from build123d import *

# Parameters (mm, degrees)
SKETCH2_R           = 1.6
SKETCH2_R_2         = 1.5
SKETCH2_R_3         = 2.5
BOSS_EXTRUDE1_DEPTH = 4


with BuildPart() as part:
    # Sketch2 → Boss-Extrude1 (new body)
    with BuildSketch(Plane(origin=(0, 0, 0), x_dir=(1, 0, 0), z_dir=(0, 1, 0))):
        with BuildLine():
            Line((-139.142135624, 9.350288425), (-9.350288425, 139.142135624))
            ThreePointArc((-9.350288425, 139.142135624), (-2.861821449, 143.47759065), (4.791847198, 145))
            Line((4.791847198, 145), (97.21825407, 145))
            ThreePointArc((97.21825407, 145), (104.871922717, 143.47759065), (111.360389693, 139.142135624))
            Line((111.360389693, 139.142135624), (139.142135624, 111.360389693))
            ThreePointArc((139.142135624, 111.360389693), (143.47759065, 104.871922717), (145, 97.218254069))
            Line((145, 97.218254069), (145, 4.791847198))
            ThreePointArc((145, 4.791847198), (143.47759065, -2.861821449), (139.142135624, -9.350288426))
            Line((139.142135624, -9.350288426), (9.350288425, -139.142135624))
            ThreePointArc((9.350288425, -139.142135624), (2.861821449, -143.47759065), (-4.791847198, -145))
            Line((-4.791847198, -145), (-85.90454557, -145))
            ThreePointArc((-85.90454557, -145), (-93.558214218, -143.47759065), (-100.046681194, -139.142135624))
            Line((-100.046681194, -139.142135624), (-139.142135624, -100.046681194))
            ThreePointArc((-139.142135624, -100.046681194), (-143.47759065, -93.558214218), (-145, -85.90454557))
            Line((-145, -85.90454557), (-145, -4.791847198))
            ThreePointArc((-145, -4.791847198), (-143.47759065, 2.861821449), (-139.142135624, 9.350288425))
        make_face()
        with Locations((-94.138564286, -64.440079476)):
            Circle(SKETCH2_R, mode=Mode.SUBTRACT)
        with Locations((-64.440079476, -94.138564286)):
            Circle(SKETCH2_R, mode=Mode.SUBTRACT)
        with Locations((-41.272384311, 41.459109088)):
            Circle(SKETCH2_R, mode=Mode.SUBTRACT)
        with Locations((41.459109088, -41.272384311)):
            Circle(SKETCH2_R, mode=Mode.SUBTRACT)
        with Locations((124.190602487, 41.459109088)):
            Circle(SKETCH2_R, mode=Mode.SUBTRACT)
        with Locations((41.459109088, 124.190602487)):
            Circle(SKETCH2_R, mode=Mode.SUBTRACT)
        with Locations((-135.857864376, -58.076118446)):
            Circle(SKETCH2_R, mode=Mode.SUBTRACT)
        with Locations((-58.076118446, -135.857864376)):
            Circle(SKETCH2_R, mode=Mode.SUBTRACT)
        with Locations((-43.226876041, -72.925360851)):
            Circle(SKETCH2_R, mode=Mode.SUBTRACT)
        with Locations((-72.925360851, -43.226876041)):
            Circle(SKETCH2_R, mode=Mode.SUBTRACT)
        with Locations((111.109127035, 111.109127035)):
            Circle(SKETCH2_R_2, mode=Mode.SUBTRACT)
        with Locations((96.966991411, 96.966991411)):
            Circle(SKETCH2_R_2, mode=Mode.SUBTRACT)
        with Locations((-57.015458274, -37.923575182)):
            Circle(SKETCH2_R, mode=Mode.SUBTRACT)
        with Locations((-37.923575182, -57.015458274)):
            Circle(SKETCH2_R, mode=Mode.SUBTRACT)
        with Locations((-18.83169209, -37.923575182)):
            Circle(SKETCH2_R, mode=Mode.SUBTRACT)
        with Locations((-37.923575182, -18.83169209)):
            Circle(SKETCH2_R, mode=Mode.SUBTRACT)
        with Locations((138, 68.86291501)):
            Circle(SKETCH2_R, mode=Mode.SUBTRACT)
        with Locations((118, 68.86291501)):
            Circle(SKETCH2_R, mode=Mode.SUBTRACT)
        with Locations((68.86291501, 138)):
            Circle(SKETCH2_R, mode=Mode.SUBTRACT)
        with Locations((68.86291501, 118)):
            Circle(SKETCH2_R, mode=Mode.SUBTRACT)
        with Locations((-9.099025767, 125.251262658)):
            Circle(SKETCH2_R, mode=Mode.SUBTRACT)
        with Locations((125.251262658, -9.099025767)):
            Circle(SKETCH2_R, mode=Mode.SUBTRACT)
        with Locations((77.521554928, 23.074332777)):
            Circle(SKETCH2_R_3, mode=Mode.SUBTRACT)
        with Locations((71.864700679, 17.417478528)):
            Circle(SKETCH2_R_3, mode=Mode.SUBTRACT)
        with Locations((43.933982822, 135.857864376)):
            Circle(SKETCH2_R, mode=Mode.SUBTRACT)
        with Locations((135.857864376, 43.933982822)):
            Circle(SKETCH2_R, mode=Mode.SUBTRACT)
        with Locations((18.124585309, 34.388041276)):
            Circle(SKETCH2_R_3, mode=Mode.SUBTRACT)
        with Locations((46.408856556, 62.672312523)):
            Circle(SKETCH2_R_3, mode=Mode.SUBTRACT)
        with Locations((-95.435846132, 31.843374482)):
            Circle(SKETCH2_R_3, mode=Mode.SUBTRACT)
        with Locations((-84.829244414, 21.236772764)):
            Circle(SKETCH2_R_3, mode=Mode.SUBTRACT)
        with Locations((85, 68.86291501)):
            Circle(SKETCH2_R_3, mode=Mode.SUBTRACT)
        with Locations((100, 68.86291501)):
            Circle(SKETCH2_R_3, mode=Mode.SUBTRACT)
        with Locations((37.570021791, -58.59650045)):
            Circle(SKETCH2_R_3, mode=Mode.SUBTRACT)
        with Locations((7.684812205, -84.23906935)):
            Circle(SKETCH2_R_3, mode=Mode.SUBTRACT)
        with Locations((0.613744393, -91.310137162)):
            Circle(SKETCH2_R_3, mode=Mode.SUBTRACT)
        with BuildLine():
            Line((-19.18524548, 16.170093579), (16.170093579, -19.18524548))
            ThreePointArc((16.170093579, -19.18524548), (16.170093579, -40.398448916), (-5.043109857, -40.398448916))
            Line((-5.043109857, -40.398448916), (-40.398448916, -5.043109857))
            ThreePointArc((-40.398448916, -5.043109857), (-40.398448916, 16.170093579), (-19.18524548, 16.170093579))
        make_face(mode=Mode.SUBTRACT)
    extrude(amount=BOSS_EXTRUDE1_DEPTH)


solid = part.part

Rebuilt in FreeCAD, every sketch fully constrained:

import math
import FreeCAD as App
import Part
import Sketcher
Q = App.Units.Quantity

doc = App.newDocument("Part")
body = doc.addObject("PartDesign::Body", "Body")

# Sketch on XZ plane
sketch1 = body.newObject("Sketcher::SketchObject", "Sketch")
sketch1.AttachmentSupport = (doc.getObject("XZ_Plane"), [""])
sketch1.MapMode = "FlatFace"
sketch1.addGeometry(Part.LineSegment(App.Vector(-9.4, -139.1, 0), App.Vector(-139.1, -9.4, 0)), False)
sketch1.addGeometry(Part.ArcOfCircle(Part.Circle(App.Vector(-125, 4.8, 0), App.Vector(0, 0, 1), 20), math.radians(-180), math.radians(-135)), False)
sketch1.addGeometry(Part.LineSegment(App.Vector(-145, 4.8, 0), App.Vector(-145, 85.9, 0)), False)
sketch1.addGeometry(Part.ArcOfCircle(Part.Circle(App.Vector(-125, 85.9, 0), App.Vector(0, 0, 1), 20), math.radians(135), math.radians(180)), False)
sketch1.addGeometry(Part.LineSegment(App.Vector(-139.1, 100, 0), App.Vector(-100, 139.1, 0)), False)
sketch1.addGeometry(Part.ArcOfCircle(Part.Circle(App.Vector(-85.9, 125, 0), App.Vector(0, 0, 1), 20), math.radians(90), math.radians(135)), False)
sketch1.addGeometry(Part.LineSegment(App.Vector(-85.9, 145, 0), App.Vector(-4.8, 145, 0)), False)
sketch1.addGeometry(Part.ArcOfCircle(Part.Circle(App.Vector(-4.8, 125, 0), App.Vector(0, 0, 1), 20), math.radians(45), math.radians(90)), False)
sketch1.addGeometry(Part.LineSegment(App.Vector(9.4, 139.1, 0), App.Vector(139.1, 9.4, 0)), False)
sketch1.addGeometry(Part.ArcOfCircle(Part.Circle(App.Vector(125, -4.8, 0), App.Vector(0, 0, 1), 20), math.radians(0), math.radians(45)), False)
sketch1.addGeometry(Part.LineSegment(App.Vector(145, -4.8, 0), App.Vector(145, -97.2, 0)), False)
sketch1.addGeometry(Part.ArcOfCircle(Part.Circle(App.Vector(125, -97.2, 0), App.Vector(0, 0, 1), 20), math.radians(-45), math.radians(0)), False)
sketch1.addGeometry(Part.LineSegment(App.Vector(139.1, -111.4, 0), App.Vector(111.4, -139.1, 0)), False)
sketch1.addGeometry(Part.ArcOfCircle(Part.Circle(App.Vector(97.2, -125, 0), App.Vector(0, 0, 1), 20), math.radians(-90), math.radians(-45)), False)
sketch1.addGeometry(Part.LineSegment(App.Vector(97.2, -145, 0), App.Vector(4.8, -145, 0)), False)
sketch1.addGeometry(Part.ArcOfCircle(Part.Circle(App.Vector(4.8, -125, 0), App.Vector(0, 0, 1), 20), math.radians(-135), math.radians(-90)), False)
sketch1.addGeometry(Part.Circle(App.Vector(7.7, 84.2, 0), App.Vector(0, 0, 1), 2.5), False)
sketch1.addGeometry(Part.Circle(App.Vector(125.3, 9.1, 0), App.Vector(0, 0, 1), 1.6), False)
sketch1.addGeometry(Part.Circle(App.Vector(37.6, 58.6, 0), App.Vector(0, 0, 1), 2.5), False)
sketch1.addGeometry(Part.Circle(App.Vector(41.5, 41.3, 0), App.Vector(0, 0, 1), 1.6), False)
sketch1.addGeometry(Part.Circle(App.Vector(-58.1, 135.9, 0), App.Vector(0, 0, 1), 1.6), False)
sketch1.addGeometry(Part.Circle(App.Vector(0.6, 91.3, 0), App.Vector(0, 0, 1), 2.5), False)
sketch1.addGeometry(Part.Circle(App.Vector(-64.4, 94.1, 0), App.Vector(0, 0, 1), 1.6), False)
sketch1.addGeometry(Part.Circle(App.Vector(-43.2, 72.9, 0), App.Vector(0, 0, 1), 1.6), False)
sketch1.addGeometry(Part.Circle(App.Vector(-18.8, 37.9, 0), App.Vector(0, 0, 1), 1.6), False)
sketch1.addGeometry(Part.Circle(App.Vector(-37.9, 57, 0), App.Vector(0, 0, 1), 1.6), False)
sketch1.addGeometry(Part.Circle(App.Vector(-57, 37.9, 0), App.Vector(0, 0, 1), 1.6), False)
sketch1.addGeometry(Part.LineSegment(App.Vector(-19.2, -16.2, 0), App.Vector(16.2, 19.2, 0)), False)
sketch1.addGeometry(Part.ArcOfCircle(Part.Circle(App.Vector(5.6, 29.8, 0), App.Vector(0, 0, 1), 15), math.radians(-45), math.radians(135)), False)
sketch1.addGeometry(Part.LineSegment(App.Vector(-5, 40.4, 0), App.Vector(-40.4, 5, 0)), False)
sketch1.addGeometry(Part.ArcOfCircle(Part.Circle(App.Vector(-29.8, -5.6, 0), App.Vector(0, 0, 1), 15), math.radians(135), math.radians(315)), False)
sketch1.addGeometry(Part.Circle(App.Vector(-37.9, 18.8, 0), App.Vector(0, 0, 1), 1.6), False)
sketch1.addGeometry(Part.Circle(App.Vector(-94.1, 64.4, 0), App.Vector(0, 0, 1), 1.6), False)
sketch1.addGeometry(Part.Circle(App.Vector(-72.9, 43.2, 0), App.Vector(0, 0, 1), 1.6), False)
sketch1.addGeometry(Part.Circle(App.Vector(-135.9, 58.1, 0), App.Vector(0, 0, 1), 1.6), False)
sketch1.addGeometry(Part.Circle(App.Vector(71.9, -17.4, 0), App.Vector(0, 0, 1), 2.5), False)
sketch1.addGeometry(Part.Circle(App.Vector(77.5, -23.1, 0), App.Vector(0, 0, 1), 2.5), False)
sketch1.addGeometry(Part.Circle(App.Vector(135.9, -43.9, 0), App.Vector(0, 0, 1), 1.6), False)
sketch1.addGeometry(Part.Circle(App.Vector(124.2, -41.5, 0), App.Vector(0, 0, 1), 1.6), False)
sketch1.addGeometry(Part.Circle(App.Vector(138, -68.9, 0), App.Vector(0, 0, 1), 1.6), False)
sketch1.addGeometry(Part.Circle(App.Vector(118, -68.9, 0), App.Vector(0, 0, 1), 1.6), False)
sketch1.addGeometry(Part.Circle(App.Vector(100, -68.9, 0), App.Vector(0, 0, 1), 2.5), False)
sketch1.addGeometry(Part.Circle(App.Vector(85, -68.9, 0), App.Vector(0, 0, 1), 2.5), False)
sketch1.addGeometry(Part.Circle(App.Vector(18.1, -34.4, 0), App.Vector(0, 0, 1), 2.5), False)
sketch1.addGeometry(Part.Circle(App.Vector(46.4, -62.7, 0), App.Vector(0, 0, 1), 2.5), False)
sketch1.addGeometry(Part.Circle(App.Vector(97, -97, 0), App.Vector(0, 0, 1), 1.5), False)
sketch1.addGeometry(Part.Circle(App.Vector(111.1, -111.1, 0), App.Vector(0, 0, 1), 1.5), False)
sketch1.addGeometry(Part.Circle(App.Vector(68.9, -118, 0), App.Vector(0, 0, 1), 1.6), False)
sketch1.addGeometry(Part.Circle(App.Vector(68.9, -138, 0), App.Vector(0, 0, 1), 1.6), False)
sketch1.addGeometry(Part.Circle(App.Vector(41.5, -124.2, 0), App.Vector(0, 0, 1), 1.6), False)
sketch1.addGeometry(Part.Circle(App.Vector(43.9, -135.9, 0), App.Vector(0, 0, 1), 1.6), False)
sketch1.addGeometry(Part.Circle(App.Vector(-41.3, -41.5, 0), App.Vector(0, 0, 1), 1.6), False)
sketch1.addGeometry(Part.Circle(App.Vector(-84.8, -21.2, 0), App.Vector(0, 0, 1), 2.5), False)
sketch1.addGeometry(Part.Circle(App.Vector(-95.4, -31.8, 0), App.Vector(0, 0, 1), 2.5), False)
sketch1.addGeometry(Part.Circle(App.Vector(-9.1, -125.3, 0), App.Vector(0, 0, 1), 1.6), False)
sketch1.addConstraint(Sketcher.Constraint("Tangent", 0, 2, 1, 2))
sketch1.addConstraint(Sketcher.Constraint("Tangent", 1, 1, 2, 1))
sketch1.addConstraint(Sketcher.Constraint("Tangent", 2, 2, 3, 2))
sketch1.addConstraint(Sketcher.Constraint("Tangent", 3, 1, 4, 1))
sketch1.addConstraint(Sketcher.Constraint("Tangent", 4, 2, 5, 2))
sketch1.addConstraint(Sketcher.Constraint("Tangent", 5, 1, 6, 1))
sketch1.addConstraint(Sketcher.Constraint("Tangent", 6, 2, 7, 2))
sketch1.addConstraint(Sketcher.Constraint("Tangent", 7, 1, 8, 1))
sketch1.addConstraint(Sketcher.Constraint("Tangent", 8, 2, 9, 2))
sketch1.addConstraint(Sketcher.Constraint("Tangent", 9, 1, 10, 1))
sketch1.addConstraint(Sketcher.Constraint("Tangent", 10, 2, 11, 2))
sketch1.addConstraint(Sketcher.Constraint("Tangent", 11, 1, 12, 1))
sketch1.addConstraint(Sketcher.Constraint("Tangent", 12, 2, 13, 2))
sketch1.addConstraint(Sketcher.Constraint("Tangent", 13, 1, 14, 1))
sketch1.addConstraint(Sketcher.Constraint("Tangent", 14, 2, 15, 2))
sketch1.addConstraint(Sketcher.Constraint("Tangent", 15, 1, 0, 1))
sketch1.addConstraint(Sketcher.Constraint("Tangent", 27, 2, 28, 1))
sketch1.addConstraint(Sketcher.Constraint("Tangent", 28, 2, 29, 1))
sketch1.addConstraint(Sketcher.Constraint("Tangent", 29, 2, 30, 1))
sketch1.addConstraint(Sketcher.Constraint("Tangent", 30, 2, 27, 1))
sketch1.addConstraint(Sketcher.Constraint("Vertical", 2))
sketch1.addConstraint(Sketcher.Constraint("Horizontal", 6))
sketch1.addConstraint(Sketcher.Constraint("Vertical", 10))
sketch1.addConstraint(Sketcher.Constraint("Horizontal", 14))
sketch1.addConstraint(Sketcher.Constraint("Equal", 1, 3))
sketch1.addConstraint(Sketcher.Constraint("Equal", 3, 5))
sketch1.addConstraint(Sketcher.Constraint("Equal", 5, 7))
sketch1.addConstraint(Sketcher.Constraint("Equal", 7, 9))
sketch1.addConstraint(Sketcher.Constraint("Equal", 9, 11))
sketch1.addConstraint(Sketcher.Constraint("Equal", 11, 13))
sketch1.addConstraint(Sketcher.Constraint("Equal", 13, 15))
sketch1.addConstraint(Sketcher.Constraint("Equal", 16, 18))
sketch1.addConstraint(Sketcher.Constraint("Equal", 17, 19))
sketch1.addConstraint(Sketcher.Constraint("Equal", 19, 20))
sketch1.addConstraint(Sketcher.Constraint("Equal", 18, 21))
sketch1.addConstraint(Sketcher.Constraint("Equal", 20, 22))
sketch1.addConstraint(Sketcher.Constraint("Equal", 22, 23))
sketch1.addConstraint(Sketcher.Constraint("Equal", 23, 24))
sketch1.addConstraint(Sketcher.Constraint("Equal", 24, 25))
sketch1.addConstraint(Sketcher.Constraint("Equal", 25, 26))
sketch1.addConstraint(Sketcher.Constraint("Equal", 28, 30))
sketch1.addConstraint(Sketcher.Constraint("Equal", 26, 31))
sketch1.addConstraint(Sketcher.Constraint("Equal", 31, 32))
sketch1.addConstraint(Sketcher.Constraint("Equal", 32, 33))
sketch1.addConstraint(Sketcher.Constraint("Equal", 33, 34))
sketch1.addConstraint(Sketcher.Constraint("Equal", 21, 35))
sketch1.addConstraint(Sketcher.Constraint("Equal", 35, 36))
sketch1.addConstraint(Sketcher.Constraint("Equal", 34, 37))
sketch1.addConstraint(Sketcher.Constraint("Equal", 37, 38))
sketch1.addConstraint(Sketcher.Constraint("Equal", 38, 39))
sketch1.addConstraint(Sketcher.Constraint("Equal", 39, 40))
sketch1.addConstraint(Sketcher.Constraint("Equal", 36, 41))
sketch1.addConstraint(Sketcher.Constraint("Equal", 41, 42))
sketch1.addConstraint(Sketcher.Constraint("Equal", 42, 43))
sketch1.addConstraint(Sketcher.Constraint("Equal", 43, 44))
sketch1.addConstraint(Sketcher.Constraint("Equal", 45, 46))
sketch1.addConstraint(Sketcher.Constraint("Equal", 40, 47))
sketch1.addConstraint(Sketcher.Constraint("Equal", 47, 48))
sketch1.addConstraint(Sketcher.Constraint("Equal", 48, 49))
sketch1.addConstraint(Sketcher.Constraint("Equal", 49, 50))
sketch1.addConstraint(Sketcher.Constraint("Equal", 50, 51))
sketch1.addConstraint(Sketcher.Constraint("Equal", 44, 52))
sketch1.addConstraint(Sketcher.Constraint("Equal", 52, 53))
sketch1.addConstraint(Sketcher.Constraint("Equal", 51, 54))
sketch1.addConstraint(Sketcher.Constraint("Symmetric", 1, 3, 9, 3, -1, 1))
sketch1.addConstraint(Sketcher.Constraint("Symmetric", 7, 3, 15, 3, -1, 1))
sketch1.addConstraint(Sketcher.Constraint("Perpendicular", 0, 4))
sketch1.addConstraint(Sketcher.Constraint("Perpendicular", 8, 12))
sketch1.addConstraint(Sketcher.Constraint("Parallel", 12, 27))
sketch1.addConstraint(Sketcher.Constraint("Horizontal", 24, 3, 26, 3))
sketch1.addConstraint(Sketcher.Constraint("Horizontal", 39, 3, 40, 3))
sketch1.addConstraint(Sketcher.Constraint("Horizontal", 40, 3, 41, 3))
sketch1.addConstraint(Sketcher.Constraint("Horizontal", 41, 3, 42, 3))
sketch1.addConstraint(Sketcher.Constraint("Horizontal", 38, 3, 51, 3))
sketch1.addConstraint(Sketcher.Constraint("Horizontal", 4, 2, 7, 1))
sketch1.addConstraint(Sketcher.Constraint("Vertical", 25, 3, 31, 3))
sketch1.addConstraint(Sketcher.Constraint("Vertical", 47, 3, 48, 3))
sketch1.addConstraint(Sketcher.Constraint("Vertical", 19, 3, 49, 3))
sketch1.addConstraint(Sketcher.Constraint("Equal", 6, 2))
sketch1.addConstraint(Sketcher.Constraint("Diameter", 16, Q("5 mm")))
sketch1.addConstraint(Sketcher.Constraint("Diameter", 45, Q("3 mm")))
sketch1.addConstraint(Sketcher.Constraint("Radius", 1, Q("20 mm")))
sketch1.addConstraint(Sketcher.Constraint("Radius", 28, Q("15 mm")))
sketch1.addConstraint(Sketcher.Constraint("Diameter", 17, Q("3.2 mm")))
sketch1.addConstraint(Sketcher.Constraint("Distance", 27, Q("50 mm")))
sketch1.addConstraint(Sketcher.Constraint("DistanceX", 1, 3, -1, 1, Q("125 mm")))
sketch1.addConstraint(Sketcher.Constraint("DistanceX", -1, 1, 39, 3, Q("138 mm")))
sketch1.addConstraint(Sketcher.Constraint("DistanceX", -1, 1, 40, 3, Q("118 mm")))
sketch1.addConstraint(Sketcher.Constraint("DistanceX", -1, 1, 41, 3, Q("100 mm")))
sketch1.addConstraint(Sketcher.Constraint("DistanceX", -1, 1, 42, 3, Q("85 mm")))
sketch1.addConstraint(Sketcher.Constraint("DistanceY", 47, 3, -1, 1, Q("118 mm")))
sketch1.addConstraint(Sketcher.Constraint("DistanceY", 48, 3, -1, 1, Q("138 mm")))
sketch1.addConstraint(Sketcher.Constraint("DistanceX", 6, 1, 6, 2, Q("81.112698 mm")))
sketch1.addConstraint(Sketcher.Constraint("DistanceY", -1, 1, 18, 3, Q("58.5965 mm")))
sketch1.addConstraint(Sketcher.Constraint("DistanceX", -1, 1, 35, 3, Q("71.864701 mm")))
sketch1.addConstraint(Sketcher.Constraint("Distance", 0, Q("183.553391 mm")))
sketch1.addConstraint(Sketcher.Constraint("Distance", 12, Q("39.289322 mm")))
sketch1.addConstraint(Sketcher.Constraint("DistanceY", -1, 1, 16, 3, Q("84.239069 mm")))
sketch1.addConstraint(Sketcher.Constraint("DistanceX", -1, 1, 18, 3, Q("37.570022 mm")))
sketch1.addConstraint(Sketcher.Constraint("DistanceX", -1, 1, 19, 3, Q("41.459109 mm")))
sketch1.addConstraint(Sketcher.Constraint("DistanceX", 20, 3, -1, 1, Q("58.076118 mm")))
sketch1.addConstraint(Sketcher.Constraint("DistanceX", 22, 3, -1, 1, Q("64.440079 mm")))
sketch1.addConstraint(Sketcher.Constraint("DistanceY", -1, 1, 23, 3, Q("72.925361 mm")))
sketch1.addConstraint(Sketcher.Constraint("DistanceY", -1, 1, 25, 3, Q("57.015458 mm")))
sketch1.addConstraint(Sketcher.Constraint("DistanceX", 26, 3, -1, 1, Q("57.015458 mm")))
sketch1.addConstraint(Sketcher.Constraint("DistanceX", -1, 1, 28, 3, Q("5.563492 mm")))
sketch1.addConstraint(Sketcher.Constraint("DistanceY", 30, 3, -1, 1, Q("5.563492 mm")))
sketch1.addConstraint(Sketcher.Constraint("DistanceY", -1, 1, 32, 3, Q("64.440079 mm")))
sketch1.addConstraint(Sketcher.Constraint("DistanceX", 33, 3, -1, 1, Q("72.925361 mm")))
sketch1.addConstraint(Sketcher.Constraint("DistanceY", -1, 1, 34, 3, Q("58.076118 mm")))
sketch1.addConstraint(Sketcher.Constraint("DistanceY", 35, 3, -1, 1, Q("17.417479 mm")))
sketch1.addConstraint(Sketcher.Constraint("DistanceY", 38, 3, -1, 1, Q("41.459109 mm")))
sketch1.addConstraint(Sketcher.Constraint("DistanceY", 43, 3, -1, 1, Q("34.388041 mm")))
sketch1.addConstraint(Sketcher.Constraint("DistanceX", -1, 1, 45, 3, Q("96.966991 mm")))
sketch1.addConstraint(Sketcher.Constraint("DistanceY", 45, 3, -1, 1, Q("96.966991 mm")))
sketch1.addConstraint(Sketcher.Constraint("DistanceX", -1, 1, 16, 3, Q("7.684812 mm")))
sketch1.addConstraint(Sketcher.Constraint("DistanceX", -1, 1, 17, 3, Q("125.251263 mm")))
sketch1.addConstraint(Sketcher.Constraint("DistanceY", -1, 1, 17, 3, Q("9.099026 mm")))
sketch1.addConstraint(Sketcher.Constraint("DistanceY", -1, 1, 19, 3, Q("41.272384 mm")))
sketch1.addConstraint(Sketcher.Constraint("DistanceY", -1, 1, 20, 3, Q("135.857864 mm")))
sketch1.addConstraint(Sketcher.Constraint("DistanceX", -1, 1, 21, 3, Q("0.613744 mm")))
sketch1.addConstraint(Sketcher.Constraint("DistanceY", -1, 1, 21, 3, Q("91.310137 mm")))
sketch1.addConstraint(Sketcher.Constraint("DistanceY", -1, 1, 22, 3, Q("94.138564 mm")))
sketch1.addConstraint(Sketcher.Constraint("DistanceX", 23, 3, -1, 1, Q("43.226876 mm")))
sketch1.addConstraint(Sketcher.Constraint("DistanceX", 24, 3, -1, 1, Q("18.831692 mm")))
sketch1.addConstraint(Sketcher.Constraint("DistanceY", -1, 1, 24, 3, Q("37.923575 mm")))
sketch1.addConstraint(Sketcher.Constraint("DistanceX", 25, 3, -1, 1, Q("37.923575 mm")))
sketch1.addConstraint(Sketcher.Constraint("DistanceY", -1, 1, 31, 3, Q("18.831692 mm")))
sketch1.addConstraint(Sketcher.Constraint("DistanceX", 32, 3, -1, 1, Q("94.138564 mm")))
sketch1.addConstraint(Sketcher.Constraint("DistanceY", -1, 1, 33, 3, Q("43.226876 mm")))
sketch1.addConstraint(Sketcher.Constraint("DistanceX", 34, 3, -1, 1, Q("135.857864 mm")))
sketch1.addConstraint(Sketcher.Constraint("DistanceX", -1, 1, 36, 3, Q("77.521555 mm")))
sketch1.addConstraint(Sketcher.Constraint("DistanceY", 36, 3, -1, 1, Q("23.074333 mm")))
sketch1.addConstraint(Sketcher.Constraint("DistanceX", -1, 1, 37, 3, Q("135.857864 mm")))
sketch1.addConstraint(Sketcher.Constraint("DistanceY", 37, 3, -1, 1, Q("43.933983 mm")))
sketch1.addConstraint(Sketcher.Constraint("DistanceX", -1, 1, 38, 3, Q("124.190602 mm")))
sketch1.addConstraint(Sketcher.Constraint("DistanceY", 39, 3, -1, 1, Q("68.862915 mm")))
sketch1.addConstraint(Sketcher.Constraint("DistanceX", -1, 1, 43, 3, Q("18.124585 mm")))
sketch1.addConstraint(Sketcher.Constraint("DistanceX", -1, 1, 44, 3, Q("46.408857 mm")))
sketch1.addConstraint(Sketcher.Constraint("DistanceY", 44, 3, -1, 1, Q("62.672313 mm")))
sketch1.addConstraint(Sketcher.Constraint("DistanceX", -1, 1, 46, 3, Q("111.109127 mm")))
sketch1.addConstraint(Sketcher.Constraint("DistanceY", 46, 3, -1, 1, Q("111.109127 mm")))
sketch1.addConstraint(Sketcher.Constraint("DistanceX", -1, 1, 47, 3, Q("68.862915 mm")))
sketch1.addConstraint(Sketcher.Constraint("DistanceY", 49, 3, -1, 1, Q("124.190602 mm")))
sketch1.addConstraint(Sketcher.Constraint("DistanceX", -1, 1, 50, 3, Q("43.933983 mm")))
sketch1.addConstraint(Sketcher.Constraint("DistanceY", 50, 3, -1, 1, Q("135.857864 mm")))
sketch1.addConstraint(Sketcher.Constraint("DistanceX", 51, 3, -1, 1, Q("41.272384 mm")))
sketch1.addConstraint(Sketcher.Constraint("DistanceX", 52, 3, -1, 1, Q("84.829244 mm")))
sketch1.addConstraint(Sketcher.Constraint("DistanceY", 52, 3, -1, 1, Q("21.236773 mm")))
sketch1.addConstraint(Sketcher.Constraint("DistanceX", 53, 3, -1, 1, Q("95.435846 mm")))
sketch1.addConstraint(Sketcher.Constraint("DistanceY", 53, 3, -1, 1, Q("31.843374 mm")))
sketch1.addConstraint(Sketcher.Constraint("DistanceX", 54, 3, -1, 1, Q("9.099026 mm")))
sketch1.addConstraint(Sketcher.Constraint("DistanceY", 54, 3, -1, 1, Q("125.251263 mm")))
pad1 = body.newObject("PartDesign::Pad", "Pad")
pad1.Profile = sketch1
pad1.Length = 4
pad1.Reversed = True

doc.recompute()
